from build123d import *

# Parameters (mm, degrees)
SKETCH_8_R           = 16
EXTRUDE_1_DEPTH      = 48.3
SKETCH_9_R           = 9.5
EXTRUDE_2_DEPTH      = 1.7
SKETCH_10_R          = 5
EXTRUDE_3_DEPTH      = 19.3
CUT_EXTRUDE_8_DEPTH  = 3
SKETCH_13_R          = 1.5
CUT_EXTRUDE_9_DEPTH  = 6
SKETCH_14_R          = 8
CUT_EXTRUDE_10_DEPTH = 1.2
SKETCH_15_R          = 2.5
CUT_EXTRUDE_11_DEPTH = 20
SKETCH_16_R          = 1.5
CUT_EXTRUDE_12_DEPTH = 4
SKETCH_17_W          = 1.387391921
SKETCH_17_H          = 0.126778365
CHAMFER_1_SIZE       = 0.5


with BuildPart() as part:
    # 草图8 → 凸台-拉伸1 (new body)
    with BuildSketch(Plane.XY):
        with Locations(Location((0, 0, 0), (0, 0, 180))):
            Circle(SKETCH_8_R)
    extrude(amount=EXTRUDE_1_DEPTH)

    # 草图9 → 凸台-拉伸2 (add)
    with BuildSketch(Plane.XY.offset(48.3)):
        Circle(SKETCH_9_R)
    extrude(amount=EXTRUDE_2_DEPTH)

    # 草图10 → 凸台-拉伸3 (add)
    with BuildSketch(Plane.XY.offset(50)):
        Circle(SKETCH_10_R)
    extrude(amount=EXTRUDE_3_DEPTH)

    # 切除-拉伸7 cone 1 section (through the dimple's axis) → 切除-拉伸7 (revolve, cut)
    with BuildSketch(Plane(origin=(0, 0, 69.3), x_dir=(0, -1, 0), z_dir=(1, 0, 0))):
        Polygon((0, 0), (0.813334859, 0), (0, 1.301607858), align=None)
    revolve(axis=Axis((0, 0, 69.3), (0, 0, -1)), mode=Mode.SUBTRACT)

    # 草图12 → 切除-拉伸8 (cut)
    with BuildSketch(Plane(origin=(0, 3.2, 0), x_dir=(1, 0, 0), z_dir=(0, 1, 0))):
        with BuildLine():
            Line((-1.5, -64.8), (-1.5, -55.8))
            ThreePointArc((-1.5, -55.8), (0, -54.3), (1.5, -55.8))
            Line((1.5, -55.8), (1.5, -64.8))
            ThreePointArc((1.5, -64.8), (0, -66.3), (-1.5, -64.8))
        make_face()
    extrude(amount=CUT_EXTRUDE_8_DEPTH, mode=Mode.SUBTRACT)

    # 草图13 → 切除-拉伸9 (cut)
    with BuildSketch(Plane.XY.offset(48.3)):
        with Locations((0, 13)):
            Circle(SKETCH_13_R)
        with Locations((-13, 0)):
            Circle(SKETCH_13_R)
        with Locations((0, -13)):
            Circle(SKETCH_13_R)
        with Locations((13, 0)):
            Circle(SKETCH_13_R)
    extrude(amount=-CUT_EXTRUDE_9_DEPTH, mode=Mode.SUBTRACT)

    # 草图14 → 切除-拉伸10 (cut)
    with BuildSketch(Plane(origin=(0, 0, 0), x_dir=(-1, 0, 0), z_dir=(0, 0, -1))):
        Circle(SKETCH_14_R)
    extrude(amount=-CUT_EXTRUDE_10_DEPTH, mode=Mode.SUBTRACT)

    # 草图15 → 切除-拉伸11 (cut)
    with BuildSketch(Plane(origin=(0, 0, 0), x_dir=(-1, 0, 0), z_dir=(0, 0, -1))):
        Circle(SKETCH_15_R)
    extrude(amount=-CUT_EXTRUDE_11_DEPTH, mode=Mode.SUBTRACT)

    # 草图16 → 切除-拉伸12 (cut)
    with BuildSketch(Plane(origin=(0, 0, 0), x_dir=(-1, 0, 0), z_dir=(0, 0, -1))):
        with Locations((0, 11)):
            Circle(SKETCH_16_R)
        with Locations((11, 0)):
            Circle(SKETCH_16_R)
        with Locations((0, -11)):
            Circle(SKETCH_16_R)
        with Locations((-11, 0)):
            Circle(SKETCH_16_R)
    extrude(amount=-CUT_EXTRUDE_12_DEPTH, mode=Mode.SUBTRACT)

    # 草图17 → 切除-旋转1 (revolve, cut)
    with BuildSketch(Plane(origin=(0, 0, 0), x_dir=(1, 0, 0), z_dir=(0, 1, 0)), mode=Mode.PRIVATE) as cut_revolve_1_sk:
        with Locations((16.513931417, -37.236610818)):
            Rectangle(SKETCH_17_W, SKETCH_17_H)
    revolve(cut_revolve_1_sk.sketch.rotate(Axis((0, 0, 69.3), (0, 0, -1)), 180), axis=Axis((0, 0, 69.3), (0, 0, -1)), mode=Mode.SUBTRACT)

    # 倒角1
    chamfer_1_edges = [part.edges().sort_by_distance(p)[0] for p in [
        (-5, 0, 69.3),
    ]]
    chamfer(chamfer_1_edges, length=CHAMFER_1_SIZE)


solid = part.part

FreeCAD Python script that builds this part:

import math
import FreeCAD as App
import Part
import Sketcher
from FreeCAD import Vector
Q = App.Units.Quantity


def edges_at(feature, points):
    """Names of the edges that pass closest to the given points."""
    edges = feature.Shape.Edges
    near = lambda p: min(range(len(edges)), key=lambda i: edges[i].distToShape(Part.Vertex(*p))[0])
    return sorted({f"Edge{near(p) + 1}" for p in points})


def add_polygon(sketch, points):
    """Adds a closed chain of lines whose ends are joined by coincident constraints."""
    first, n = sketch.GeometryCount, len(points)
    for a, b in zip(points, points[1:] + points[:1]):
        sketch.addGeometry(Part.LineSegment(App.Vector(*a, 0), App.Vector(*b, 0)), False)
    for i in range(n):
        sketch.addConstraint(Sketcher.Constraint("Coincident", first + i, 2, first + (i + 1) % n, 1))

doc = App.newDocument("Part")
body = doc.addObject("PartDesign::Body", "Body")

# Sketch on XY plane
sketch1 = body.newObject("Sketcher::SketchObject", "Sketch")
sketch1.AttachmentSupport = (doc.getObject("XY_Plane"), [""])
sketch1.MapMode = "FlatFace"
sketch1.addGeometry(Part.Circle(Vector(0, 0, 0), Vector(0, 0, 1), 16), False)
sketch1.addConstraint([
    Sketcher.Constraint("Coincident", 0, 3, -1, 1),
    Sketcher.Constraint("Diameter", 0, Q("32 mm")),
])
pad1 = body.newObject("PartDesign::Pad", "Pad")
pad1.Profile = sketch1
pad1.Length = 48.3

# Sketch on XY plane
sketch2 = body.newObject("Sketcher::SketchObject", "Sketch001")
sketch2.AttachmentSupport = (doc.getObject("XY_Plane"), [""])
sketch2.MapMode = "FlatFace"
sketch2.AttachmentOffset = App.Placement(Vector(0, 0, 48.3), App.Rotation())
sketch2.addGeometry(Part.Circle(Vector(0, 0, 0), Vector(0, 0, 1), 9.5), False)
sketch2.addConstraint([
    Sketcher.Constraint("Coincident", 0, 3, -1, 1),
    Sketcher.Constraint("Diameter", 0, Q("19 mm")),
])
pad2 = body.newObject("PartDesign::Pad", "Pad001")
pad2.Profile = sketch2
pad2.Length = 1.7

# Sketch on XY plane
sketch3 = body.newObject("Sketcher::SketchObject", "Sketch002")
sketch3.AttachmentSupport = (doc.getObject("XY_Plane"), [""])
sketch3.MapMode = "FlatFace"
sketch3.AttachmentOffset = App.Placement(Vector(0, 0, 50), App.Rotation())
sketch3.addGeometry(Part.Circle(Vector(0, 0, 0), Vector(0, 0, 1), 5), False)
sketch3.addConstraint([
    Sketcher.Constraint("Coincident", 0, 3, -1, 1),
    Sketcher.Constraint("Diameter", 0, Q("10 mm")),
])
pad3 = body.newObject("PartDesign::Pad", "Pad002")
pad3.Profile = sketch3
pad3.Length = 19.3

# Sketch on YZ plane
sketch4 = body.newObject("Sketcher::SketchObject", "Sketch003")
sketch4.AttachmentSupport = (doc.getObject("YZ_Plane"), [""])
sketch4.MapMode = "FlatFace"
add_polygon(sketch4, [(0, 69.3), (-0.813335, 69.3), (0, 67.998392)])  # lines 0-2
sketch4.addConstraint([
    Sketcher.Constraint("Horizontal", 0),
    Sketcher.Constraint("Vertical", 2),
    Sketcher.Constraint("PointOnObject", 1, 2, -2),
    Sketcher.Constraint("Angle", 1, Q("-58 deg")),
    Sketcher.Constraint("DistanceY", -1, 1, 0, 2, Q("69.3 mm")),
    Sketcher.Constraint("DistanceX", 0, 2, 0, 1, Q("0.813335 mm")),
])
groove = body.newObject("PartDesign::Groove", "Groove")
groove.Profile = sketch4
groove.ReferenceAxis = (sketch4, ["V_Axis"])
groove.Angle = 360

# Sketch on XZ plane
sketch5 = body.newObject("Sketcher::SketchObject", "Sketch004")
sketch5.AttachmentSupport = (doc.getObject("XZ_Plane"), [""])
sketch5.MapMode = "FlatFace"
sketch5.AttachmentOffset = App.Placement(Vector(0, 0, -3.2), App.Rotation())
sketch5.addGeometry([
    Part.LineSegment(Vector(-1.5, 55.8, 0), Vector(-1.5, 64.8, 0)),
    Part.ArcOfCircle(Part.Circle(Vector(0, 64.8, 0), Vector(0, 0, 1), 1.5), math.radians(0), math.radians(180)),
    Part.LineSegment(Vector(1.5, 64.8, 0), Vector(1.5, 55.8, 0)),
    Part.ArcOfCircle(Part.Circle(Vector(0, 55.8, 0), Vector(0, 0, 1), 1.5), math.radians(180), math.radians(360)),
], False)
sketch5.addConstraint([
    Sketcher.Constraint("Tangent", 0, 2, 1, 2),
    Sketcher.Constraint("Tangent", 1, 1, 2, 1),
    Sketcher.Constraint("Tangent", 2, 2, 3, 2),
    Sketcher.Constraint("Tangent", 3, 1, 0, 1),
    Sketcher.Constraint("Vertical", 0),
    Sketcher.Constraint("Vertical", 2),
    Sketcher.Constraint("PointOnObject", 1, 3, -2),
    Sketcher.Constraint("Radius", 1, Q("1.5 mm")),
    Sketcher.Constraint("DistanceY", 0, 1, 0, 2, Q("9 mm")),
    Sketcher.Constraint("DistanceY", -1, 1, 1, 3, Q("64.8 mm")),
])
pocket1 = body.newObject("PartDesign::Pocket", "Pocket")
pocket1.Profile = sketch5
pocket1.Length = 3

# Sketch on XY plane
sketch6 = body.newObject("Sketcher::SketchObject", "Sketch005")
sketch6.AttachmentSupport = (doc.getObject("XY_Plane"), [""])
sketch6.MapMode = "FlatFace"
sketch6.AttachmentOffset = App.Placement(Vector(0, 0, 48.3), App.Rotation())
sketch6.addGeometry([
    Part.Circle(Vector(0, 13, 0), Vector(0, 0, 1), 1.5),
    Part.Circle(Vector(-13, 0, 0), Vector(0, 0, 1), 1.5),
    Part.Circle(Vector(0, -13, 0), Vector(0, 0, 1), 1.5),
    Part.Circle(Vector(13, 0, 0), Vector(0, 0, 1), 1.5),
], False)
sketch6.addConstraint([
    Sketcher.Constraint("Equal", 0, 1),
    Sketcher.Constraint("Equal", 1, 2),
    Sketcher.Constraint("Equal", 2, 3),
    Sketcher.Constraint("Symmetric", 0, 3, 2, 3, -1, 1),
    Sketcher.Constraint("Symmetric", 1, 3, 3, 3, -1, 1),
    Sketcher.Constraint("PointOnObject", 0, 3, -2),
    Sketcher.Constraint("PointOnObject", 1, 3, -1),
    Sketcher.Constraint("Diameter", 0, Q("3 mm")),
    Sketcher.Constraint("DistanceY", -1, 1, 0, 3, Q("13 mm")),
    Sketcher.Constraint("DistanceX", 1, 3, -1, 1, Q("13 mm")),
])
pocket2 = body.newObject("PartDesign::Pocket", "Pocket001")
pocket2.Profile = sketch6
pocket2.Length = 6

# Sketch on XY plane
sketch7 = body.newObject("Sketcher::SketchObject", "Sketch006")
sketch7.AttachmentSupport = (doc.getObject("XY_Plane"), [""])
sketch7.MapMode = "FlatFace"
sketch7.addGeometry(Part.Circle(Vector(0, 0, 0), Vector(0, 0, 1), 8), False)
sketch7.addConstraint([
    Sketcher.Constraint("Coincident", 0, 3, -1, 1),
    Sketcher.Constraint("Diameter", 0, Q("16 mm")),
])
pocket3 = body.newObject("PartDesign::Pocket", "Pocket002")
pocket3.Profile = sketch7
pocket3.Length = 1.2
pocket3.Reversed = True

# Sketch on XY plane
sketch8 = body.newObject("Sketcher::SketchObject", "Sketch007")
sketch8.AttachmentSupport = (doc.getObject("XY_Plane"), [""])
sketch8.MapMode = "FlatFace"
sketch8.addGeometry(Part.Circle(Vector(0, 0, 0), Vector(0, 0, 1), 2.5), False)
sketch8.addConstraint([
    Sketcher.Constraint("Coincident", 0, 3, -1, 1),
    Sketcher.Constraint("Diameter", 0, Q("5 mm")),
])
pocket4 = body.newObject("PartDesign::Pocket", "Pocket003")
pocket4.Profile = sketch8
pocket4.Length = 20
pocket4.Reversed = True

# Sketch on XY plane
sketch9 = body.newObject("Sketcher::SketchObject", "Sketch008")
sketch9.AttachmentSupport = (doc.getObject("XY_Plane"), [""])
sketch9.MapMode = "FlatFace"
sketch9.addGeometry([
    Part.Circle(Vector(0, 11, 0), Vector(0, 0, 1), 1.5),
    Part.Circle(Vector(-11, 0, 0), Vector(0, 0, 1), 1.5),
    Part.Circle(Vector(0, -11, 0), Vector(0, 0, 1), 1.5),
    Part.Circle(Vector(11, 0, 0), Vector(0, 0, 1), 1.5),
], False)
sketch9.addConstraint([
    Sketcher.Constraint("Equal", 0, 1),
    Sketcher.Constraint("Equal", 1, 2),
    Sketcher.Constraint("Equal", 2, 3),
    Sketcher.Constraint("Symmetric", 0, 3, 2, 3, -1, 1),
    Sketcher.Constraint("Symmetric", 1, 3, 3, 3, -1, 1),
    Sketcher.Constraint("PointOnObject", 0, 3, -2),
    Sketcher.Constraint("PointOnObject", 1, 3, -1),
    Sketcher.Constraint("Diameter", 0, Q("3 mm")),
    Sketcher.Constraint("DistanceY", -1, 1, 0, 3, Q("11 mm")),
    Sketcher.Constraint("DistanceX", 1, 3, -1, 1, Q("11 mm")),
])
pocket5 = body.newObject("PartDesign::Pocket", "Pocket004")
pocket5.Profile = sketch9
pocket5.Length = 4
pocket5.Reversed = True

# Sketch on XZ plane
sketch10 = body.newObject("Sketcher::SketchObject", "Sketch009")
sketch10.AttachmentSupport = (doc.getObject("XZ_Plane"), [""])
sketch10.MapMode = "FlatFace"
add_polygon(sketch10, [(15.820235, 37.173222), (15.820235, 37.3), (17.207627, 37.3), (17.207627, 37.173222)])  # lines 0-3
sketch10.addConstraint([
    Sketcher.Constraint("Vertical", 0),
    Sketcher.Constraint("Horizontal", 1),
    Sketcher.Constraint("Vertical", 2),
    Sketcher.Constraint("Horizontal", 3),
    Sketcher.Constraint("DistanceY", -1, 1, 0, 2, Q("37.3 mm")),
    Sketcher.Constraint("DistanceX", 1, 1, 1, 2, Q("1.387392 mm")),
    Sketcher.Constraint("DistanceY", 0, 1, 0, 2, Q("0.126778 mm")),
    Sketcher.Constraint("DistanceX", -1, 1, 0, 2, Q("15.820235 mm")),
])
groove2 = body.newObject("PartDesign::Groove", "Groove001")
groove2.Profile = sketch10
groove2.ReferenceAxis = (sketch10, ["V_Axis"])
groove2.Angle = 360
doc.recompute()

chamfer = body.newObject("PartDesign::Chamfer", "Chamfer")
chamfer.Base = (groove2, edges_at(groove2, [(-5, 0, 69.3)]))
chamfer.Size = 0.5

doc.recompute()
